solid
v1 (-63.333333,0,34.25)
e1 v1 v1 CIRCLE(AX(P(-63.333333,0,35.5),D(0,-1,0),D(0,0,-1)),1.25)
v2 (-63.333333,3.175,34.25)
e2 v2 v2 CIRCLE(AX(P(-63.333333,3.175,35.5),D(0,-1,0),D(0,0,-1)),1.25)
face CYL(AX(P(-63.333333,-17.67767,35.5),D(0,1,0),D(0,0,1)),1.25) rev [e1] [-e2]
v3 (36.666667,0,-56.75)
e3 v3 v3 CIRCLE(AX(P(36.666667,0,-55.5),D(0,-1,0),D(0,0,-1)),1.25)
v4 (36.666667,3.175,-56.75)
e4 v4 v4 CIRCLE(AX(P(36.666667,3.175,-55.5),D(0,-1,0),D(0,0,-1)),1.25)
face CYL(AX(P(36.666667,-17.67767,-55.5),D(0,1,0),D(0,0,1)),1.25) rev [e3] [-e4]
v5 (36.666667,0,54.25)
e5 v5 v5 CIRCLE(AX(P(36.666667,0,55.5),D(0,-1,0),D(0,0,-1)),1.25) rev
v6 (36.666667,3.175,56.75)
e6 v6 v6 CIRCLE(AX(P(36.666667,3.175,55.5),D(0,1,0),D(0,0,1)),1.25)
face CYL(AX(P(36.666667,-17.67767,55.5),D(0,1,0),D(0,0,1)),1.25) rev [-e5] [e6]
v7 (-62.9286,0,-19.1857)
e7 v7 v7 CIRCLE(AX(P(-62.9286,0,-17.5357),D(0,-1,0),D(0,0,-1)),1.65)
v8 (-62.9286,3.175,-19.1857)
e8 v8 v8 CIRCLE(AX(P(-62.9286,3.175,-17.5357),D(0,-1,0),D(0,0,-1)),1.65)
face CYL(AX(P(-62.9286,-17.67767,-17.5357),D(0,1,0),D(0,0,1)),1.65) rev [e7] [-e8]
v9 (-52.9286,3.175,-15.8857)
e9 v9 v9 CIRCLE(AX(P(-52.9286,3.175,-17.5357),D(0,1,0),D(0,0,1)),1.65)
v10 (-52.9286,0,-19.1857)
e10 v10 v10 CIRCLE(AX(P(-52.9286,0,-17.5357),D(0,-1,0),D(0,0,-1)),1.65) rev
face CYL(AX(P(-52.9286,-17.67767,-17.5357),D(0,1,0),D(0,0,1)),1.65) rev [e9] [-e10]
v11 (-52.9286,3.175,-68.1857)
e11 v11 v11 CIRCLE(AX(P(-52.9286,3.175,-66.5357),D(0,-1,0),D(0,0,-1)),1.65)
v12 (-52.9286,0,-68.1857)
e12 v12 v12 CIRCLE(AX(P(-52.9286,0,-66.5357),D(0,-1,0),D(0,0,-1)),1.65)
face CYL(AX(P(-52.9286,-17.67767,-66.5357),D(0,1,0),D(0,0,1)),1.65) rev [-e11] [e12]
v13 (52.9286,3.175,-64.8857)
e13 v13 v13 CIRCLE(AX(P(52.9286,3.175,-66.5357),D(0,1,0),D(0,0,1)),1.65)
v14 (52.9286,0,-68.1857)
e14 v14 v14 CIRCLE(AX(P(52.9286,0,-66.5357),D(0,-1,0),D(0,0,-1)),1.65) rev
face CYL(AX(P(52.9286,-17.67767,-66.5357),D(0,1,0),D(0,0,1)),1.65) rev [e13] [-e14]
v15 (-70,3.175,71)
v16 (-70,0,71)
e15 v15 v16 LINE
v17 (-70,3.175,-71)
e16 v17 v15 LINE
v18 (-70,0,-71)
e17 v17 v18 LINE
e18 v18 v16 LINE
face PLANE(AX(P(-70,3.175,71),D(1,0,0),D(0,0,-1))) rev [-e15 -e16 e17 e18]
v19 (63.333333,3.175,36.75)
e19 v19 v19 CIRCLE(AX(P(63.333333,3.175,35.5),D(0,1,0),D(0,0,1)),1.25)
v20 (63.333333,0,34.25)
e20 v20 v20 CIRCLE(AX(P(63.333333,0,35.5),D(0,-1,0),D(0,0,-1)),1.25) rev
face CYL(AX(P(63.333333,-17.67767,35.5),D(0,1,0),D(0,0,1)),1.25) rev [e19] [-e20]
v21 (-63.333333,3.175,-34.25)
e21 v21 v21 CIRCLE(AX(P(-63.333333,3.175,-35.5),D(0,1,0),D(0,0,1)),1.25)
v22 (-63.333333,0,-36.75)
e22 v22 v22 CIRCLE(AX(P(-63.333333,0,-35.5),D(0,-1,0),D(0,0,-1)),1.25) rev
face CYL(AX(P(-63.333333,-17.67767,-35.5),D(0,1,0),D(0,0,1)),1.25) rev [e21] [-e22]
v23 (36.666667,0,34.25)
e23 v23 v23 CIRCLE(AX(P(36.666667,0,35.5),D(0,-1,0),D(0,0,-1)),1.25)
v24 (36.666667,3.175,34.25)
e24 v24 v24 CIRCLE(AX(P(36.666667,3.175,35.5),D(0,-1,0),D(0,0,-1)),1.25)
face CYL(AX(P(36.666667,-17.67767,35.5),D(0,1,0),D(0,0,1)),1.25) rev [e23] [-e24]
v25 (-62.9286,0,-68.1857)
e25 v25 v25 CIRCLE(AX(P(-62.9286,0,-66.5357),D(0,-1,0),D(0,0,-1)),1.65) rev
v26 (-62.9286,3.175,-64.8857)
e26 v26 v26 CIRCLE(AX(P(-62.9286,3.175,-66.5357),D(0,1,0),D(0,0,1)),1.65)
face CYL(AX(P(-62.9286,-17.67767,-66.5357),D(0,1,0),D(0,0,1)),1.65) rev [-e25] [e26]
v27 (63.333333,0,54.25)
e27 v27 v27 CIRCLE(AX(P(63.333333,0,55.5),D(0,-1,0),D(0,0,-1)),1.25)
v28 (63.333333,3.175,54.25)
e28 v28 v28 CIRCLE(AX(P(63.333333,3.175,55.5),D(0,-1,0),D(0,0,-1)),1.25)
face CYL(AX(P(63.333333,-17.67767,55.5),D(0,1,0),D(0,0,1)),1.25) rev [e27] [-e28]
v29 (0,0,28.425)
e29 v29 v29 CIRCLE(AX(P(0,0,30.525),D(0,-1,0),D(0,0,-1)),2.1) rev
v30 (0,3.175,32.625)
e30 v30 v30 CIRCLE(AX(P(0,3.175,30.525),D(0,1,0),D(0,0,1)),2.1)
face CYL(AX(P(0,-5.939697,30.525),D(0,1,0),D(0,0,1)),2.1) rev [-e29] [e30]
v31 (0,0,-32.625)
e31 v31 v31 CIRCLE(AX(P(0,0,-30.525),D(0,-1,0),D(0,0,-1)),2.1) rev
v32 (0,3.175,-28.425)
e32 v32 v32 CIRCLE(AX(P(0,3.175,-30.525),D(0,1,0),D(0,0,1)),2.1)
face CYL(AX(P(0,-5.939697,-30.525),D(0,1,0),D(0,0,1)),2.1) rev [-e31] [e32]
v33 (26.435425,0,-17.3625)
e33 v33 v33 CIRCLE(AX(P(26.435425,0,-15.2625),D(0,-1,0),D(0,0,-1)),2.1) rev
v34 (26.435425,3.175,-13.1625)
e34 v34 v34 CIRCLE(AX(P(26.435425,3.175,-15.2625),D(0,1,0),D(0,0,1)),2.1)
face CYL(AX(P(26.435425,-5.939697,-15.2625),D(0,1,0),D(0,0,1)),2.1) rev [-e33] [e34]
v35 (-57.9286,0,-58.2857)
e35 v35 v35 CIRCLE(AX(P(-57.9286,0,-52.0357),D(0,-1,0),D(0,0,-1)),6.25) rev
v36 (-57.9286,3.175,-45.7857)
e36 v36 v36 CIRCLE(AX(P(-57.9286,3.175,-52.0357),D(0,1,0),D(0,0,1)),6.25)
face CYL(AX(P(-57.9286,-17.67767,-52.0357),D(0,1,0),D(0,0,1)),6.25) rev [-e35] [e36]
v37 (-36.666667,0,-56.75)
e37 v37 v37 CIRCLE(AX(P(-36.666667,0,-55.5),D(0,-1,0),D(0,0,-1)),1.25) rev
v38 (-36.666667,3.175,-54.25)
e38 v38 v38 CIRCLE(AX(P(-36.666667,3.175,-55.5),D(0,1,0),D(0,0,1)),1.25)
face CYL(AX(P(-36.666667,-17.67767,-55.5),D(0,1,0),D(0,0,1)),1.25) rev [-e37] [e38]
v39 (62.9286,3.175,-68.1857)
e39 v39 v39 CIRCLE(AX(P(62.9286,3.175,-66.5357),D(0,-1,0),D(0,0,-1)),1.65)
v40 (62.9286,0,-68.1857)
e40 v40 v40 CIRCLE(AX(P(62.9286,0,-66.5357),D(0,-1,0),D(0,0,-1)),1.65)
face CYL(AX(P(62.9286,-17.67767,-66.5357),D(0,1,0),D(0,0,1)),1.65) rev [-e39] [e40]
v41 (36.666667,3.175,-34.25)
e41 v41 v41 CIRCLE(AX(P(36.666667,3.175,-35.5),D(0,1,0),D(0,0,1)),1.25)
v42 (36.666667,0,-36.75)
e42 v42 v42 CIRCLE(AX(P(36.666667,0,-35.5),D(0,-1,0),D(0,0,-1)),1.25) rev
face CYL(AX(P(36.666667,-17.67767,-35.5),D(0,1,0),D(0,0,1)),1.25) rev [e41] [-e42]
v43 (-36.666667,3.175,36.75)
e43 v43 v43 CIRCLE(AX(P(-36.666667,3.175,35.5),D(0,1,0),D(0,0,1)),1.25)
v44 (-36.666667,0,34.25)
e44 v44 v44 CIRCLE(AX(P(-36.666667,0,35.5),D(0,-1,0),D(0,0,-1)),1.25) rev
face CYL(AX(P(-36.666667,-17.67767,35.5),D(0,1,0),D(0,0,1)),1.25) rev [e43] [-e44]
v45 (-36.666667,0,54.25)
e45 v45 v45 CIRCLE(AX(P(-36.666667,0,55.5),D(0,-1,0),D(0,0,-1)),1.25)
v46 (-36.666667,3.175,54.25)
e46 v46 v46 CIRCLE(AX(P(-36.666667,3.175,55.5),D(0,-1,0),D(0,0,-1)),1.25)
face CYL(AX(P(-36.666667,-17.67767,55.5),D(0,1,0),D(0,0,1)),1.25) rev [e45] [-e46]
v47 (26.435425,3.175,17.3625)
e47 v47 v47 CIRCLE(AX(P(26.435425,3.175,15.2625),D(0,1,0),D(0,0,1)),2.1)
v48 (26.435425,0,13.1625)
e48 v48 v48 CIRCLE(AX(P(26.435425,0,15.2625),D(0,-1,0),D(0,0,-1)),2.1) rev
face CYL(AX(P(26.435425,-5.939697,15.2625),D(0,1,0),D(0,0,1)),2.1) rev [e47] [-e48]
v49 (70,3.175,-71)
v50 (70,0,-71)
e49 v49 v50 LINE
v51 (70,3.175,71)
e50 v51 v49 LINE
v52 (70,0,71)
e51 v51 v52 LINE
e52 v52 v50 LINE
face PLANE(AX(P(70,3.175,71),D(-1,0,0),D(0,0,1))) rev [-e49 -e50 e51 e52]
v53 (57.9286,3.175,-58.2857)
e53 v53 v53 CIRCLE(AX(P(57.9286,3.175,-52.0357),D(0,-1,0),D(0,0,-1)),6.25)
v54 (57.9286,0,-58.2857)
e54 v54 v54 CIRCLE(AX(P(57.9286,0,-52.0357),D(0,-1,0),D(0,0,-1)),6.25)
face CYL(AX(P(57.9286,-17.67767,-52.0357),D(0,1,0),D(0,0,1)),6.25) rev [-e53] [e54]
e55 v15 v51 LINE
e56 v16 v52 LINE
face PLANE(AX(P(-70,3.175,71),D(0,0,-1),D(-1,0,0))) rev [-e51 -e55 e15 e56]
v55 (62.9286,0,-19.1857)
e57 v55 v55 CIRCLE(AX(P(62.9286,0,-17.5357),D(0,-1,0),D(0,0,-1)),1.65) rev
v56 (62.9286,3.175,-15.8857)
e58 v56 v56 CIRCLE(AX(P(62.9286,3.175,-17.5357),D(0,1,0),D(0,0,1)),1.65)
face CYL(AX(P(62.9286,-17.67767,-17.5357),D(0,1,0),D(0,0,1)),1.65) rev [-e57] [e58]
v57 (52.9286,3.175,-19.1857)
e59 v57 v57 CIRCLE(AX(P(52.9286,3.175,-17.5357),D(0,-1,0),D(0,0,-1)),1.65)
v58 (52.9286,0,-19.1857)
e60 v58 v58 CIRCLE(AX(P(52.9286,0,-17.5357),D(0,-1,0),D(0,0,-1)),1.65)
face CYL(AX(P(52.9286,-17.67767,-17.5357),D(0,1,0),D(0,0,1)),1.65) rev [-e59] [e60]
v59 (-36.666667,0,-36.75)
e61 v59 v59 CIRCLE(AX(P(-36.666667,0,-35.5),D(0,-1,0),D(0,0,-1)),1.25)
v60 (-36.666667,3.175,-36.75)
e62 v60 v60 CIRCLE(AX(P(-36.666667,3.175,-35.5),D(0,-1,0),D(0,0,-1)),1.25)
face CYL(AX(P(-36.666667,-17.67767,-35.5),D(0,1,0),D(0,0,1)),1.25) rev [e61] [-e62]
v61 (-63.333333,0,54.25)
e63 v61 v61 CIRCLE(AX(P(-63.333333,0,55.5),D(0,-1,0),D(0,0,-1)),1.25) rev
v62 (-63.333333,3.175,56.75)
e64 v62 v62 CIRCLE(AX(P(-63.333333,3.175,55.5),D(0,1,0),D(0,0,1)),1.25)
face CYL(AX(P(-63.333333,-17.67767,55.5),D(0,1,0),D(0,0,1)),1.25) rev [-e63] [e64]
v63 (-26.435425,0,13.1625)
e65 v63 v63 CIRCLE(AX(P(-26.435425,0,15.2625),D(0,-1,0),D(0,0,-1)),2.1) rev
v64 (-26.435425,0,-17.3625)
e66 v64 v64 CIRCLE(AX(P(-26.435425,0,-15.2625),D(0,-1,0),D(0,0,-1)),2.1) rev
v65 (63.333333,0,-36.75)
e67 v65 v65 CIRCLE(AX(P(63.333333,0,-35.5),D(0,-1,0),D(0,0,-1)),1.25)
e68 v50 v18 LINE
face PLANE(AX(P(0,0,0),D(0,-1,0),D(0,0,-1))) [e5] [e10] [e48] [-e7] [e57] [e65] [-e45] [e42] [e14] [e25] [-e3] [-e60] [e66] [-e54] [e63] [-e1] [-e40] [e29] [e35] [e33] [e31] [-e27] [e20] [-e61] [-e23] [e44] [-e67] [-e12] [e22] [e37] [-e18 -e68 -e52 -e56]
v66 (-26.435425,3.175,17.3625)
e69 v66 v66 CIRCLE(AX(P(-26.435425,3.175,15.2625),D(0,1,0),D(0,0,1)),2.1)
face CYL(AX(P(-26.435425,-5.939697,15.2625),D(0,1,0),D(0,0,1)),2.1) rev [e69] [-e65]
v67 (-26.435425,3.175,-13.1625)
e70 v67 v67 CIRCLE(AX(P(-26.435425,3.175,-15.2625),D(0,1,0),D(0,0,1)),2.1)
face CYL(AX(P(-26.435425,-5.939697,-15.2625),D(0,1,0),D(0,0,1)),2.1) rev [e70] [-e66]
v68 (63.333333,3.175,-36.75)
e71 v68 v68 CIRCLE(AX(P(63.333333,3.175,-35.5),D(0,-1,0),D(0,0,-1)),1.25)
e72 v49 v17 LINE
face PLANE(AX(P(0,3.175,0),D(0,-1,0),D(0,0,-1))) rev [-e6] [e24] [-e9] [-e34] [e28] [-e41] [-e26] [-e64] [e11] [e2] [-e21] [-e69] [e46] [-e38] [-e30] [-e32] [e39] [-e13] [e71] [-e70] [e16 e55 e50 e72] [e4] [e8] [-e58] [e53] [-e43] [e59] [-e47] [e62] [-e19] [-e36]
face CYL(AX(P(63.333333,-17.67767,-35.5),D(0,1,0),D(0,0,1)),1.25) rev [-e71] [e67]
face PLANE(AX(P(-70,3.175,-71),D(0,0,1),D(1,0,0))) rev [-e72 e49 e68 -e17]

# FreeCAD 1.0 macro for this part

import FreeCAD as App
import Part
import Sketcher
from FreeCAD import Vector


def add_polygon(sketch, points):
    """Adds a closed chain of lines whose ends are joined by coincident constraints."""
    first, n = sketch.GeometryCount, len(points)
    for a, b in zip(points, points[1:] + points[:1]):
        sketch.addGeometry(Part.LineSegment(App.Vector(*a, 0), App.Vector(*b, 0)), False)
    for i in range(n):
        sketch.addConstraint(Sketcher.Constraint("Coincident", first + i, 2, first + (i + 1) % n, 1))

doc = App.newDocument("Part")
body = doc.addObject("PartDesign::Body", "Body")

sketch1 = body.newObject("Sketcher::SketchObject", "Sketch")
sketch1.AttachmentSupport = (doc.getObject("XZ_Plane"), [""])
sketch1.MapMode = "FlatFace"
add_polygon(sketch1, [(-70, -71), (-70, 71), (70, 71), (70, -71)])
sketch1.addConstraint(Sketcher.Constraint("Vertical", 0))
sketch1.addConstraint(Sketcher.Constraint("Horizontal", 1))
sketch1.addConstraint(Sketcher.Constraint("Vertical", 2))
sketch1.addConstraint(Sketcher.Constraint("Horizontal", 3))
sketch1.addConstraint(Sketcher.Constraint("Symmetric", 0, 2, 2, 2, -1, 1))
sketch1.addConstraint(Sketcher.Constraint("DistanceX", 1, 1, 1, 2, 140.0))
sketch1.addConstraint(Sketcher.Constraint("DistanceY", 0, 1, 0, 2, 142.0))
pad1 = body.newObject("PartDesign::Pad", "Pad")
pad1.Profile = sketch1
pad1.Length = 3.175
pad1.Reversed = True

sketch2 = body.newObject("Sketcher::SketchObject", "Sketch001")
sketch2.AttachmentSupport = (doc.getObject("XZ_Plane"), [""])
sketch2.MapMode = "FlatFace"
sketch2.AttachmentOffset = App.Placement(Vector(0, 0, -3.175), App.Rotation())
sketch2.addGeometry(Part.Circle(Vector(-57.9, -52, 0), Vector(0, 0, 1), 6.2), False)
sketch2.addGeometry(Part.Circle(Vector(-62.9, -66.5, 0), Vector(0, 0, 1), 1.6), False)
sketch2.addGeometry(Part.Circle(Vector(-52.9, -66.5, 0), Vector(0, 0, 1), 1.6), False)
sketch2.addGeometry(Part.Circle(Vector(-52.9, -17.5, 0), Vector(0, 0, 1), 1.6), False)
sketch2.addGeometry(Part.Circle(Vector(-62.9, -17.5, 0), Vector(0, 0, 1), 1.6), False)
sketch2.addGeometry(Part.Circle(Vector(52.9, -17.5, 0), Vector(0, 0, 1), 1.6), False)
sketch2.addGeometry(Part.Circle(Vector(62.9, -17.5, 0), Vector(0, 0, 1), 1.6), False)
sketch2.addGeometry(Part.Circle(Vector(57.9, -52, 0), Vector(0, 0, 1), 6.2), False)
sketch2.addGeometry(Part.Circle(Vector(52.9, -66.5, 0), Vector(0, 0, 1), 1.6), False)
sketch2.addGeometry(Part.Circle(Vector(62.9, -66.5, 0), Vector(0, 0, 1), 1.6), False)
sketch2.addGeometry(Part.Circle(Vector(-36.7, -55.5, 0), Vector(0, 0, 1), 1.2), False)
sketch2.addGeometry(Part.Circle(Vector(-36.7, -35.5, 0), Vector(0, 0, 1), 1.2), False)
sketch2.addGeometry(Part.Circle(Vector(-63.3, -35.5, 0), Vector(0, 0, 1), 1.2), False)
sketch2.addGeometry(Part.Circle(Vector(36.7, -35.5, 0), Vector(0, 0, 1), 1.2), False)
sketch2.addGeometry(Part.Circle(Vector(63.3, -35.5, 0), Vector(0, 0, 1), 1.2), False)
sketch2.addGeometry(Part.Circle(Vector(36.7, -55.5, 0), Vector(0, 0, 1), 1.2), False)
sketch2.addGeometry(Part.Circle(Vector(63.3, 35.5, 0), Vector(0, 0, 1), 1.2), False)
sketch2.addGeometry(Part.Circle(Vector(36.7, 35.5, 0), Vector(0, 0, 1), 1.2), False)
sketch2.addGeometry(Part.Circle(Vector(63.3, 55.5, 0), Vector(0, 0, 1), 1.2), False)
sketch2.addGeometry(Part.Circle(Vector(36.7, 55.5, 0), Vector(0, 0, 1), 1.2), False)
sketch2.addGeometry(Part.Circle(Vector(-36.7, 35.5, 0), Vector(0, 0, 1), 1.2), False)
sketch2.addGeometry(Part.Circle(Vector(-63.3, 35.5, 0), Vector(0, 0, 1), 1.2), False)
sketch2.addGeometry(Part.Circle(Vector(-36.7, 55.5, 0), Vector(0, 0, 1), 1.2), False)
sketch2.addGeometry(Part.Circle(Vector(-63.3, 55.5, 0), Vector(0, 0, 1), 1.2), False)
sketch2.addConstraint(Sketcher.Constraint("Equal", 1, 2))
sketch2.addConstraint(Sketcher.Constraint("Equal", 2, 3))
sketch2.addConstraint(Sketcher.Constraint("Equal", 3, 4))
sketch2.addConstraint(Sketcher.Constraint("Equal", 4, 5))
sketch2.addConstraint(Sketcher.Constraint("Equal", 5, 6))
sketch2.addConstraint(Sketcher.Constraint("Equal", 0, 7))
sketch2.addConstraint(Sketcher.Constraint("Equal", 6, 8))
sketch2.addConstraint(Sketcher.Constraint("Equal", 8, 9))
sketch2.addConstraint(Sketcher.Constraint("Equal", 10, 11))
sketch2.addConstraint(Sketcher.Constraint("Equal", 11, 12))
sketch2.addConstraint(Sketcher.Constraint("Equal", 12, 13))
sketch2.addConstraint(Sketcher.Constraint("Equal", 13, 14))
sketch2.addConstraint(Sketcher.Constraint("Equal", 14, 15))
sketch2.addConstraint(Sketcher.Constraint("Equal", 15, 16))
sketch2.addConstraint(Sketcher.Constraint("Equal", 16, 17))
sketch2.addConstraint(Sketcher.Constraint("Equal", 17, 18))
sketch2.addConstraint(Sketcher.Constraint("Equal", 18, 19))
sketch2.addConstraint(Sketcher.Constraint("Equal", 19, 20))
sketch2.addConstraint(Sketcher.Constraint("Equal", 20, 21))
sketch2.addConstraint(Sketcher.Constraint("Equal", 21, 22))
sketch2.addConstraint(Sketcher.Constraint("Equal", 22, 23))
sketch2.addConstraint(Sketcher.Constraint("Symmetric", 12, 3, 16, 3, -1, 1))
sketch2.addConstraint(Sketcher.Constraint("Symmetric", 11, 3, 17, 3, -1, 1))
sketch2.addConstraint(Sketcher.Constraint("Symmetric", 10, 3, 19, 3, -1, 1))
sketch2.addConstraint(Sketcher.Constraint("Symmetric", 13, 3, 20, 3, -1, 1))
sketch2.addConstraint(Sketcher.Constraint("Symmetric", 14, 3, 21, 3, -1, 1))
sketch2.addConstraint(Sketcher.Constraint("Symmetric", 15, 3, 22, 3, -1, 1))
sketch2.addConstraint(Sketcher.Constraint("Symmetric", 3, 3, 5, 3, -2))
sketch2.addConstraint(Sketcher.Constraint("Symmetric", 4, 3, 6, 3, -2))
sketch2.addConstraint(Sketcher.Constraint("Symmetric", 0, 3, 7, 3, -2))
sketch2.addConstraint(Sketcher.Constraint("Symmetric", 2, 3, 8, 3, -2))
sketch2.addConstraint(Sketcher.Constraint("Symmetric", 1, 3, 9, 3, -2))
sketch2.addConstraint(Sketcher.Constraint("Symmetric", 11, 3, 13, 3, -2))
sketch2.addConstraint(Sketcher.Constraint("Symmetric", 12, 3, 14, 3, -2))
sketch2.addConstraint(Sketcher.Constraint("Symmetric", 10, 3, 15, 3, -2))
sketch2.addConstraint(Sketcher.Constraint("Symmetric", 18, 3, 23, 3, -2))
sketch2.addConstraint(Sketcher.Constraint("Horizontal", 1, 3, 2, 3))
sketch2.addConstraint(Sketcher.Constraint("Horizontal", 3, 3, 4, 3))
sketch2.addConstraint(Sketcher.Constraint("Horizontal", 11, 3, 12, 3))
sketch2.addConstraint(Sketcher.Constraint("Horizontal", 18, 3, 19, 3))
sketch2.addConstraint(Sketcher.Constraint("Vertical", 2, 3, 3, 3))
sketch2.addConstraint(Sketcher.Constraint("Vertical", 1, 3, 4, 3))
sketch2.addConstraint(Sketcher.Constraint("Vertical", 10, 3, 11, 3))
sketch2.addConstraint(Sketcher.Constraint("Vertical", 16, 3, 18, 3))
sketch2.addConstraint(Sketcher.Constraint("Diameter", 0, 12.5))
sketch2.addConstraint(Sketcher.Constraint("Diameter", 1, 3.3))
sketch2.addConstraint(Sketcher.Constraint("Diameter", 10, 2.5))
sketch2.addConstraint(Sketcher.Constraint("DistanceX", 1, 3, 0, 3, 5.0))
sketch2.addConstraint(Sketcher.Constraint("DistanceX", 1, 3, 2, 3, 10.0))
sketch2.addConstraint(Sketcher.Constraint("DistanceY", 2, 3, 3, 3, 49.0))
sketch2.addConstraint(Sketcher.Constraint("DistanceY", 10, 3, 11, 3, 20.0))
sketch2.addConstraint(Sketcher.Constraint("DistanceY", 14, 3, 16, 3, 71.0))
sketch2.addConstraint(Sketcher.Constraint("DistanceY", 1, 3, 0, 3, 14.5))
sketch2.addConstraint(Sketcher.Constraint("DistanceX", 0, 3, -1, 1, 57.9286))
sketch2.addConstraint(Sketcher.Constraint("DistanceY", 0, 3, -1, 1, 52.0357))
sketch2.addConstraint(Sketcher.Constraint("DistanceX", 10, 3, -1, 1, 36.666667))
sketch2.addConstraint(Sketcher.Constraint("DistanceX", 12, 3, -1, 1, 63.333333))
pocket1 = body.newObject("PartDesign::Pocket", "Pocket")
pocket1.Profile = sketch2
pocket1.Length = 3.175
pocket1.Reversed = True

sketch3 = body.newObject("Sketcher::SketchObject", "Sketch002")
sketch3.AttachmentSupport = (doc.getObject("XZ_Plane"), [""])
sketch3.MapMode = "FlatFace"
sketch3.AttachmentOffset = App.Placement(Vector(0, 0, -3.175), App.Rotation())
sketch3.addGeometry(Part.Circle(Vector(0, -30.5, 0), Vector(0, 0, 1), 2.1), False)
sketch3.addGeometry(Part.Circle(Vector(26.4, -15.3, 0), Vector(0, 0, 1), 2.1), False)
sketch3.addGeometry(Part.Circle(Vector(26.4, 15.3, 0), Vector(0, 0, 1), 2.1), False)
sketch3.addGeometry(Part.Circle(Vector(0, 30.5, 0), Vector(0, 0, 1), 2.1), False)
sketch3.addGeometry(Part.Circle(Vector(-26.4, 15.3, 0), Vector(0, 0, 1), 2.1), False)
sketch3.addGeometry(Part.Circle(Vector(-26.4, -15.3, 0), Vector(0, 0, 1), 2.1), False)
sketch3.addConstraint(Sketcher.Constraint("Equal", 0, 1))
sketch3.addConstraint(Sketcher.Constraint("Equal", 1, 2))
sketch3.addConstraint(Sketcher.Constraint("Equal", 2, 3))
sketch3.addConstraint(Sketcher.Constraint("Equal", 3, 4))
sketch3.addConstraint(Sketcher.Constraint("Equal", 4, 5))
sketch3.addConstraint(Sketcher.Constraint("Symmetric", 0, 3, 3, 3, -1, 1))
sketch3.addConstraint(Sketcher.Constraint("Symmetric", 1, 3, 4, 3, -1, 1))
sketch3.addConstraint(Sketcher.Constraint("Symmetric", 2, 3, 5, 3, -1, 1))
sketch3.addConstraint(Sketcher.Constraint("Symmetric", 2, 3, 4, 3, -2))
sketch3.addConstraint(Sketcher.Constraint("PointOnObject", 0, 3, -2))
sketch3.addConstraint(Sketcher.Constraint("Diameter", 0, 4.2))
sketch3.addConstraint(Sketcher.Constraint("DistanceY", 0, 3, 3, 3, 61.05))
sketch3.addConstraint(Sketcher.Constraint("DistanceY", 1, 3, 2, 3, 30.525))
sketch3.addConstraint(Sketcher.Constraint("DistanceX", 4, 3, 2, 3, 52.870851))
pocket2 = body.newObject("PartDesign::Pocket", "Pocket001")
pocket2.Profile = sketch3
pocket2.Length = 3.175
pocket2.Reversed = True

doc.recompute()
